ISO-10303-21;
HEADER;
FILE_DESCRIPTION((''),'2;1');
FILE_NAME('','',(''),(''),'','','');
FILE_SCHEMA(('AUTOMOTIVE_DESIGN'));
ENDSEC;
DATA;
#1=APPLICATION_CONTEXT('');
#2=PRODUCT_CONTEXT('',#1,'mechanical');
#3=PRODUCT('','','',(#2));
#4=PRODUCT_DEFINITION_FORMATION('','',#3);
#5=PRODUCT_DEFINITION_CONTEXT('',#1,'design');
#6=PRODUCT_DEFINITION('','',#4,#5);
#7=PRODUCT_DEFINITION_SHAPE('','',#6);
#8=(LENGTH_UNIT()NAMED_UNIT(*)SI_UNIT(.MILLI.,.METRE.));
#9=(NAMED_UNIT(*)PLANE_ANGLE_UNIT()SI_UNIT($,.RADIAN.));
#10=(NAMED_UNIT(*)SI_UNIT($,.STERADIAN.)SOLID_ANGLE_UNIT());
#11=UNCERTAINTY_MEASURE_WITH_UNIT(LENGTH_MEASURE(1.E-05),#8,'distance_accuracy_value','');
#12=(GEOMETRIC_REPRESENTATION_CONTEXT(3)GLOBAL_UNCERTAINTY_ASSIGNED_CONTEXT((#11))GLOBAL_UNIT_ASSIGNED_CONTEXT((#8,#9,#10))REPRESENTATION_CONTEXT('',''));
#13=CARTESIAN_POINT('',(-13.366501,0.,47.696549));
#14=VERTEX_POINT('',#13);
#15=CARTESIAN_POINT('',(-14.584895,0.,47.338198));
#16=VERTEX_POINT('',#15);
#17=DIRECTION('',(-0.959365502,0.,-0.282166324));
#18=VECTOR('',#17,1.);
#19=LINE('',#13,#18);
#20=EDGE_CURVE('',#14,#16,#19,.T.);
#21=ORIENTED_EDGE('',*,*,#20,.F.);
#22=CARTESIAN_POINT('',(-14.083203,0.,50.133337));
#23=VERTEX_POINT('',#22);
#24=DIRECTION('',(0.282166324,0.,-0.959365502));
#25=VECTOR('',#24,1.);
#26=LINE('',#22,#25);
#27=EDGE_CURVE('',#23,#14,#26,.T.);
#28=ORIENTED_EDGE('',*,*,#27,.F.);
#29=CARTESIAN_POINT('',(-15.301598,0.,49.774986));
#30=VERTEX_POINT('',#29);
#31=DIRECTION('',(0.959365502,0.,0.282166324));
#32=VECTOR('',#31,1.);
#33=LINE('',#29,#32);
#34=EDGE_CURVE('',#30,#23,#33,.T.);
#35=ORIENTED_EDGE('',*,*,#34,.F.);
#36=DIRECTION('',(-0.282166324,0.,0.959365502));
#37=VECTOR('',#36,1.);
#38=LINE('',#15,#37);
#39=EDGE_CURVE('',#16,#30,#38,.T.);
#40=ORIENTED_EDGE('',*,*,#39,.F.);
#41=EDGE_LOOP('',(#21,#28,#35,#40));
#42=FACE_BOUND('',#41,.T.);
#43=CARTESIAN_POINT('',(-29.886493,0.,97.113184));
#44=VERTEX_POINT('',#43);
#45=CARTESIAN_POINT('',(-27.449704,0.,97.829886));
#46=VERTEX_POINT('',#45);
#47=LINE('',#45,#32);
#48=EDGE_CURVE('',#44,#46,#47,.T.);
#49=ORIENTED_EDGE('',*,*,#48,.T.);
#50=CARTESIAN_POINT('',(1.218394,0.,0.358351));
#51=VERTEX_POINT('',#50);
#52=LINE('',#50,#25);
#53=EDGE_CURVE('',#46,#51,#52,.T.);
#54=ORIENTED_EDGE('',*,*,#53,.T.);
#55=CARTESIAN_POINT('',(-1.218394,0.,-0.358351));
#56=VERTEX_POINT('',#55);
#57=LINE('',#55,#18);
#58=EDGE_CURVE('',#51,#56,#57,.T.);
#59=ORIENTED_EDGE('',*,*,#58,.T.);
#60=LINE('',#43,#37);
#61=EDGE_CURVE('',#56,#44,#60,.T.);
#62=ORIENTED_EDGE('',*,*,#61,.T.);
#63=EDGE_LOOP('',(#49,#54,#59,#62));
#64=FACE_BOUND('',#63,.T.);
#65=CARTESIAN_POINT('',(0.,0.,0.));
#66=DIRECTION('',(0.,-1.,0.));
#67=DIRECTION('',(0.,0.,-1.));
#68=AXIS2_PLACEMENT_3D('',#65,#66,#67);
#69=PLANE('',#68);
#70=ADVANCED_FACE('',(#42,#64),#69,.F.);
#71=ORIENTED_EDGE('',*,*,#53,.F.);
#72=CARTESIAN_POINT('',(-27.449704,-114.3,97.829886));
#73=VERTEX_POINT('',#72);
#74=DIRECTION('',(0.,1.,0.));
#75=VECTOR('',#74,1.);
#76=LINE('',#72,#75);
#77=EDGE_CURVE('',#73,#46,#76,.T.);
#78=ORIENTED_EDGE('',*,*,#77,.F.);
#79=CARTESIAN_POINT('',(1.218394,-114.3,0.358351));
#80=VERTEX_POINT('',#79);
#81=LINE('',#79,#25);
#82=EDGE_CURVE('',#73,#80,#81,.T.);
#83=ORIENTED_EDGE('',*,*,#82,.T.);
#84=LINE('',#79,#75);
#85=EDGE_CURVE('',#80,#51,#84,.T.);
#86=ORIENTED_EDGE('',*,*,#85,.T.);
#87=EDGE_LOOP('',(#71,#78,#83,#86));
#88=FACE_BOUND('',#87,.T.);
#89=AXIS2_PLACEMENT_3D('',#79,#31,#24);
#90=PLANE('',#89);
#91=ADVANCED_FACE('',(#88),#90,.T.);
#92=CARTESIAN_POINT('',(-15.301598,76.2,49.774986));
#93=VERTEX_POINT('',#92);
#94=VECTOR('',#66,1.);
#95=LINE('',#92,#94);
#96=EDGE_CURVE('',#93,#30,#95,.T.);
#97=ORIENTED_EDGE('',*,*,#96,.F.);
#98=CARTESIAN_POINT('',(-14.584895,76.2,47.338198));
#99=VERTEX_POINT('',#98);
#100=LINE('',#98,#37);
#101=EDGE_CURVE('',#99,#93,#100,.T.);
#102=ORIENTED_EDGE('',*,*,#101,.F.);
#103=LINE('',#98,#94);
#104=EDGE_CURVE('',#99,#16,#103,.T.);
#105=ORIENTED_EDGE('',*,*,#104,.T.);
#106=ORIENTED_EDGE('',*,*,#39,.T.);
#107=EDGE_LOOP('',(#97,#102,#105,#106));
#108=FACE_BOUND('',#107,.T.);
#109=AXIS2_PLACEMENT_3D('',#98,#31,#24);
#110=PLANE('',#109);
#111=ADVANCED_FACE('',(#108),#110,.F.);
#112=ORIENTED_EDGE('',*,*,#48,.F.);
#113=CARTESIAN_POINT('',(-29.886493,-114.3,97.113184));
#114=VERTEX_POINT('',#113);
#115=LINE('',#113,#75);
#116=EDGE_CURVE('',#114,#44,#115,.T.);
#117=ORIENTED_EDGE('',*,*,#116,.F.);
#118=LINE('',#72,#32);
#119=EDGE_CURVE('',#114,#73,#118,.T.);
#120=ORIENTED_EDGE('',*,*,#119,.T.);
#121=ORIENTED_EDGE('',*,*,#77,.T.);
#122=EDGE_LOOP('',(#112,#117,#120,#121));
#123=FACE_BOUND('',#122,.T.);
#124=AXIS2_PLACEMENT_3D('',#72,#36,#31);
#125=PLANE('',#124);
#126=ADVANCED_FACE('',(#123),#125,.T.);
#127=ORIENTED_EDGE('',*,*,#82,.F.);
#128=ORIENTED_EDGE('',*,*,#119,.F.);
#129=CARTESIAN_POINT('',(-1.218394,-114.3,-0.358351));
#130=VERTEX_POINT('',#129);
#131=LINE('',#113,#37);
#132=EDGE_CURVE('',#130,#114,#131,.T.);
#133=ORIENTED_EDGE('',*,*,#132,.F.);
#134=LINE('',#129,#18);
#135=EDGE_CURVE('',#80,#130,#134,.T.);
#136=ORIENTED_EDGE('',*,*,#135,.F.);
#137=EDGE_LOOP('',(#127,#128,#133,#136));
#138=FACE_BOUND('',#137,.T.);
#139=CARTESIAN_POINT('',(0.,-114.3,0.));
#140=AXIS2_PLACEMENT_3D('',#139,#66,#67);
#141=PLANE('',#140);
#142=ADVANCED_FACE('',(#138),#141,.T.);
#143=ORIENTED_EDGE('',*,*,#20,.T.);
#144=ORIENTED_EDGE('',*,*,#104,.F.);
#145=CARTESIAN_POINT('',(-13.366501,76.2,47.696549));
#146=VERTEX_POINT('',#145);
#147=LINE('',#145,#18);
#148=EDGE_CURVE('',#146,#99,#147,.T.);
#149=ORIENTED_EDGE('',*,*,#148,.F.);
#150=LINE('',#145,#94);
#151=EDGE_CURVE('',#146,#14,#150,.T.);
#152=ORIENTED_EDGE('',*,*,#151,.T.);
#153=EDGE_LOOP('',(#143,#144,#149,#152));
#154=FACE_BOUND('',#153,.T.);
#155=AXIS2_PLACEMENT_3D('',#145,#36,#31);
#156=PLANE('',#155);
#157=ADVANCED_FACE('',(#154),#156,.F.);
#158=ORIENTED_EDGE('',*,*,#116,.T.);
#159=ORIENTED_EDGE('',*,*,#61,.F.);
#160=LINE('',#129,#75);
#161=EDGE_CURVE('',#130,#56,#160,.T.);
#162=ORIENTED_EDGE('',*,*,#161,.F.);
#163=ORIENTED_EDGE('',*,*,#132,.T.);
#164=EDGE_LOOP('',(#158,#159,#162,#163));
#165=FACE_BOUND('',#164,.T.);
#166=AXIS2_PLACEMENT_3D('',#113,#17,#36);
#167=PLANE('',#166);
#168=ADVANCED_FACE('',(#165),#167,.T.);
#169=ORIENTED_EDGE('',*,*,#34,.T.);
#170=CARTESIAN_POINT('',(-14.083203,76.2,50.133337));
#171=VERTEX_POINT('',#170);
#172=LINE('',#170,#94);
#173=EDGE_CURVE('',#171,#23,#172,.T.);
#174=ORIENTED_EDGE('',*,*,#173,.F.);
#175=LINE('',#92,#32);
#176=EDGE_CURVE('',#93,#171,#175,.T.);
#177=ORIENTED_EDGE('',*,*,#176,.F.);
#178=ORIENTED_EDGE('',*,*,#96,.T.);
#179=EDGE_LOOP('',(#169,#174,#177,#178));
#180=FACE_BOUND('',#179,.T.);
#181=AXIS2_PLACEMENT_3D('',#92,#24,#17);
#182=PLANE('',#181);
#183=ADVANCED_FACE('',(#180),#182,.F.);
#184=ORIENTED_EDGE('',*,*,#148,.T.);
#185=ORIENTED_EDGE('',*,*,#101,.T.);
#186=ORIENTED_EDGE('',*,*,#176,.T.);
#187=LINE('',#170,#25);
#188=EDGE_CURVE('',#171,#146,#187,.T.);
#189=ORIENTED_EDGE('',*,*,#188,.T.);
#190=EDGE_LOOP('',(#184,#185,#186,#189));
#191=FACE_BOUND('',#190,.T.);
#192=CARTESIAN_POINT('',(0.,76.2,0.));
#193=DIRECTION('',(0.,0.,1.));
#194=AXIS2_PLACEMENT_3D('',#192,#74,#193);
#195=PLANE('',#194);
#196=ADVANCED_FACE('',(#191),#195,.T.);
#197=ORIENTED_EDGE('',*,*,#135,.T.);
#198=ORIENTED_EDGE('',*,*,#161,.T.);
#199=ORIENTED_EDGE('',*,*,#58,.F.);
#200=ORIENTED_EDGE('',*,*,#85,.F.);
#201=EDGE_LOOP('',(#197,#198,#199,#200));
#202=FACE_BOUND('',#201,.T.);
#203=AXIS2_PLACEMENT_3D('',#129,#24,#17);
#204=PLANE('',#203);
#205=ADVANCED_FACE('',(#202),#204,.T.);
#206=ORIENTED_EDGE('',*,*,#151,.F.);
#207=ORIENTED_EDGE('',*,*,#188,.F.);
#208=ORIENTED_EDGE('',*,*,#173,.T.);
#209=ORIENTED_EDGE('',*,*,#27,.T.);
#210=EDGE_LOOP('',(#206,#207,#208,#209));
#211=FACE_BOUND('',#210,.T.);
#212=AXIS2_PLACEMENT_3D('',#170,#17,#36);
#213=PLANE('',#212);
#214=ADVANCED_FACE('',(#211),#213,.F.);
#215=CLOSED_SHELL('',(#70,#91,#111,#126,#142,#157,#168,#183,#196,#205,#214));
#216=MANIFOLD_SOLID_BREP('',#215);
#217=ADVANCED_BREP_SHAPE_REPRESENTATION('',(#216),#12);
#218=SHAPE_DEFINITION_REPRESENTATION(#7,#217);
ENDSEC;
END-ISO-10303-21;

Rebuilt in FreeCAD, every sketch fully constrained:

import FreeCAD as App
import Part
import Sketcher
Q = App.Units.Quantity


def add_polygon(sketch, points):
    """Adds a closed chain of lines whose ends are joined by coincident constraints."""
    first, n = sketch.GeometryCount, len(points)
    for a, b in zip(points, points[1:] + points[:1]):
        sketch.addGeometry(Part.LineSegment(App.Vector(*a, 0), App.Vector(*b, 0)), False)
    for i in range(n):
        sketch.addConstraint(Sketcher.Constraint("Coincident", first + i, 2, first + (i + 1) % n, 1))

doc = App.newDocument("Part")
body = doc.addObject("PartDesign::Body", "Body")

sketch1 = doc.addObject("Sketcher::SketchObject", "Sketch")
body.addObject(sketch1)
sketch1.AttachmentSupport = (doc.XZ_Plane, [""])
sketch1.MapMode = "FlatFace"
add_polygon(sketch1, [(1.2, 0.4), (-1.2, -0.4), (-29.9, 97.1), (-27.4, 97.8)])
sketch1.addConstraint([
    Sketcher.Constraint("Symmetric", 0, 2, 3, 2, -1, 1),
    Sketcher.Constraint("Perpendicular", 0, 1),
    Sketcher.Constraint("Perpendicular", 1, 2),
    Sketcher.Constraint("Perpendicular", 2, 3),
    Sketcher.Constraint("Distance", 1, Q("4 in")),
    Sketcher.Constraint("Distance", 0, Q("0.1 in")),
    Sketcher.Constraint("DistanceX", 1, 2, 0, 2, Q("28.668099 mm")),
])
pad1 = doc.addObject("PartDesign::Pad", "Pad")
body.addObject(pad1)
pad1.Profile = sketch1
pad1.Length = Q("4.5 in")

sketch2 = doc.addObject("Sketcher::SketchObject", "Sketch001")
body.addObject(sketch2)
sketch2.AttachmentSupport = (doc.XZ_Plane, [""])
sketch2.MapMode = "FlatFace"
add_polygon(sketch2, [(-14.6, 47.3), (-15.3, 49.8), (-14.1, 50.1), (-13.4, 47.7)])
sketch2.addConstraint([
    Sketcher.Constraint("Perpendicular", 0, 1),
    Sketcher.Constraint("Perpendicular", 1, 2),
    Sketcher.Constraint("Perpendicular", 2, 3),
    Sketcher.Constraint("Distance", 0, Q("0.1 in")),
    Sketcher.Constraint("Distance", 1, Q("0.05 in")),
    Sketcher.Constraint("DistanceX", 2, 2, -1, 1, Q("13.366501 mm")),
    Sketcher.Constraint("DistanceY", -1, 1, 2, 2, Q("47.696549 mm")),
    Sketcher.Constraint("DistanceY", 0, 2, 1, 2, Q("0.358351 mm")),
])
pad2 = doc.addObject("PartDesign::Pad", "Pad001")
body.addObject(pad2)
pad2.Profile = sketch2
pad2.Length = Q("3 in")
pad2.Reversed = True

doc.recompute()
